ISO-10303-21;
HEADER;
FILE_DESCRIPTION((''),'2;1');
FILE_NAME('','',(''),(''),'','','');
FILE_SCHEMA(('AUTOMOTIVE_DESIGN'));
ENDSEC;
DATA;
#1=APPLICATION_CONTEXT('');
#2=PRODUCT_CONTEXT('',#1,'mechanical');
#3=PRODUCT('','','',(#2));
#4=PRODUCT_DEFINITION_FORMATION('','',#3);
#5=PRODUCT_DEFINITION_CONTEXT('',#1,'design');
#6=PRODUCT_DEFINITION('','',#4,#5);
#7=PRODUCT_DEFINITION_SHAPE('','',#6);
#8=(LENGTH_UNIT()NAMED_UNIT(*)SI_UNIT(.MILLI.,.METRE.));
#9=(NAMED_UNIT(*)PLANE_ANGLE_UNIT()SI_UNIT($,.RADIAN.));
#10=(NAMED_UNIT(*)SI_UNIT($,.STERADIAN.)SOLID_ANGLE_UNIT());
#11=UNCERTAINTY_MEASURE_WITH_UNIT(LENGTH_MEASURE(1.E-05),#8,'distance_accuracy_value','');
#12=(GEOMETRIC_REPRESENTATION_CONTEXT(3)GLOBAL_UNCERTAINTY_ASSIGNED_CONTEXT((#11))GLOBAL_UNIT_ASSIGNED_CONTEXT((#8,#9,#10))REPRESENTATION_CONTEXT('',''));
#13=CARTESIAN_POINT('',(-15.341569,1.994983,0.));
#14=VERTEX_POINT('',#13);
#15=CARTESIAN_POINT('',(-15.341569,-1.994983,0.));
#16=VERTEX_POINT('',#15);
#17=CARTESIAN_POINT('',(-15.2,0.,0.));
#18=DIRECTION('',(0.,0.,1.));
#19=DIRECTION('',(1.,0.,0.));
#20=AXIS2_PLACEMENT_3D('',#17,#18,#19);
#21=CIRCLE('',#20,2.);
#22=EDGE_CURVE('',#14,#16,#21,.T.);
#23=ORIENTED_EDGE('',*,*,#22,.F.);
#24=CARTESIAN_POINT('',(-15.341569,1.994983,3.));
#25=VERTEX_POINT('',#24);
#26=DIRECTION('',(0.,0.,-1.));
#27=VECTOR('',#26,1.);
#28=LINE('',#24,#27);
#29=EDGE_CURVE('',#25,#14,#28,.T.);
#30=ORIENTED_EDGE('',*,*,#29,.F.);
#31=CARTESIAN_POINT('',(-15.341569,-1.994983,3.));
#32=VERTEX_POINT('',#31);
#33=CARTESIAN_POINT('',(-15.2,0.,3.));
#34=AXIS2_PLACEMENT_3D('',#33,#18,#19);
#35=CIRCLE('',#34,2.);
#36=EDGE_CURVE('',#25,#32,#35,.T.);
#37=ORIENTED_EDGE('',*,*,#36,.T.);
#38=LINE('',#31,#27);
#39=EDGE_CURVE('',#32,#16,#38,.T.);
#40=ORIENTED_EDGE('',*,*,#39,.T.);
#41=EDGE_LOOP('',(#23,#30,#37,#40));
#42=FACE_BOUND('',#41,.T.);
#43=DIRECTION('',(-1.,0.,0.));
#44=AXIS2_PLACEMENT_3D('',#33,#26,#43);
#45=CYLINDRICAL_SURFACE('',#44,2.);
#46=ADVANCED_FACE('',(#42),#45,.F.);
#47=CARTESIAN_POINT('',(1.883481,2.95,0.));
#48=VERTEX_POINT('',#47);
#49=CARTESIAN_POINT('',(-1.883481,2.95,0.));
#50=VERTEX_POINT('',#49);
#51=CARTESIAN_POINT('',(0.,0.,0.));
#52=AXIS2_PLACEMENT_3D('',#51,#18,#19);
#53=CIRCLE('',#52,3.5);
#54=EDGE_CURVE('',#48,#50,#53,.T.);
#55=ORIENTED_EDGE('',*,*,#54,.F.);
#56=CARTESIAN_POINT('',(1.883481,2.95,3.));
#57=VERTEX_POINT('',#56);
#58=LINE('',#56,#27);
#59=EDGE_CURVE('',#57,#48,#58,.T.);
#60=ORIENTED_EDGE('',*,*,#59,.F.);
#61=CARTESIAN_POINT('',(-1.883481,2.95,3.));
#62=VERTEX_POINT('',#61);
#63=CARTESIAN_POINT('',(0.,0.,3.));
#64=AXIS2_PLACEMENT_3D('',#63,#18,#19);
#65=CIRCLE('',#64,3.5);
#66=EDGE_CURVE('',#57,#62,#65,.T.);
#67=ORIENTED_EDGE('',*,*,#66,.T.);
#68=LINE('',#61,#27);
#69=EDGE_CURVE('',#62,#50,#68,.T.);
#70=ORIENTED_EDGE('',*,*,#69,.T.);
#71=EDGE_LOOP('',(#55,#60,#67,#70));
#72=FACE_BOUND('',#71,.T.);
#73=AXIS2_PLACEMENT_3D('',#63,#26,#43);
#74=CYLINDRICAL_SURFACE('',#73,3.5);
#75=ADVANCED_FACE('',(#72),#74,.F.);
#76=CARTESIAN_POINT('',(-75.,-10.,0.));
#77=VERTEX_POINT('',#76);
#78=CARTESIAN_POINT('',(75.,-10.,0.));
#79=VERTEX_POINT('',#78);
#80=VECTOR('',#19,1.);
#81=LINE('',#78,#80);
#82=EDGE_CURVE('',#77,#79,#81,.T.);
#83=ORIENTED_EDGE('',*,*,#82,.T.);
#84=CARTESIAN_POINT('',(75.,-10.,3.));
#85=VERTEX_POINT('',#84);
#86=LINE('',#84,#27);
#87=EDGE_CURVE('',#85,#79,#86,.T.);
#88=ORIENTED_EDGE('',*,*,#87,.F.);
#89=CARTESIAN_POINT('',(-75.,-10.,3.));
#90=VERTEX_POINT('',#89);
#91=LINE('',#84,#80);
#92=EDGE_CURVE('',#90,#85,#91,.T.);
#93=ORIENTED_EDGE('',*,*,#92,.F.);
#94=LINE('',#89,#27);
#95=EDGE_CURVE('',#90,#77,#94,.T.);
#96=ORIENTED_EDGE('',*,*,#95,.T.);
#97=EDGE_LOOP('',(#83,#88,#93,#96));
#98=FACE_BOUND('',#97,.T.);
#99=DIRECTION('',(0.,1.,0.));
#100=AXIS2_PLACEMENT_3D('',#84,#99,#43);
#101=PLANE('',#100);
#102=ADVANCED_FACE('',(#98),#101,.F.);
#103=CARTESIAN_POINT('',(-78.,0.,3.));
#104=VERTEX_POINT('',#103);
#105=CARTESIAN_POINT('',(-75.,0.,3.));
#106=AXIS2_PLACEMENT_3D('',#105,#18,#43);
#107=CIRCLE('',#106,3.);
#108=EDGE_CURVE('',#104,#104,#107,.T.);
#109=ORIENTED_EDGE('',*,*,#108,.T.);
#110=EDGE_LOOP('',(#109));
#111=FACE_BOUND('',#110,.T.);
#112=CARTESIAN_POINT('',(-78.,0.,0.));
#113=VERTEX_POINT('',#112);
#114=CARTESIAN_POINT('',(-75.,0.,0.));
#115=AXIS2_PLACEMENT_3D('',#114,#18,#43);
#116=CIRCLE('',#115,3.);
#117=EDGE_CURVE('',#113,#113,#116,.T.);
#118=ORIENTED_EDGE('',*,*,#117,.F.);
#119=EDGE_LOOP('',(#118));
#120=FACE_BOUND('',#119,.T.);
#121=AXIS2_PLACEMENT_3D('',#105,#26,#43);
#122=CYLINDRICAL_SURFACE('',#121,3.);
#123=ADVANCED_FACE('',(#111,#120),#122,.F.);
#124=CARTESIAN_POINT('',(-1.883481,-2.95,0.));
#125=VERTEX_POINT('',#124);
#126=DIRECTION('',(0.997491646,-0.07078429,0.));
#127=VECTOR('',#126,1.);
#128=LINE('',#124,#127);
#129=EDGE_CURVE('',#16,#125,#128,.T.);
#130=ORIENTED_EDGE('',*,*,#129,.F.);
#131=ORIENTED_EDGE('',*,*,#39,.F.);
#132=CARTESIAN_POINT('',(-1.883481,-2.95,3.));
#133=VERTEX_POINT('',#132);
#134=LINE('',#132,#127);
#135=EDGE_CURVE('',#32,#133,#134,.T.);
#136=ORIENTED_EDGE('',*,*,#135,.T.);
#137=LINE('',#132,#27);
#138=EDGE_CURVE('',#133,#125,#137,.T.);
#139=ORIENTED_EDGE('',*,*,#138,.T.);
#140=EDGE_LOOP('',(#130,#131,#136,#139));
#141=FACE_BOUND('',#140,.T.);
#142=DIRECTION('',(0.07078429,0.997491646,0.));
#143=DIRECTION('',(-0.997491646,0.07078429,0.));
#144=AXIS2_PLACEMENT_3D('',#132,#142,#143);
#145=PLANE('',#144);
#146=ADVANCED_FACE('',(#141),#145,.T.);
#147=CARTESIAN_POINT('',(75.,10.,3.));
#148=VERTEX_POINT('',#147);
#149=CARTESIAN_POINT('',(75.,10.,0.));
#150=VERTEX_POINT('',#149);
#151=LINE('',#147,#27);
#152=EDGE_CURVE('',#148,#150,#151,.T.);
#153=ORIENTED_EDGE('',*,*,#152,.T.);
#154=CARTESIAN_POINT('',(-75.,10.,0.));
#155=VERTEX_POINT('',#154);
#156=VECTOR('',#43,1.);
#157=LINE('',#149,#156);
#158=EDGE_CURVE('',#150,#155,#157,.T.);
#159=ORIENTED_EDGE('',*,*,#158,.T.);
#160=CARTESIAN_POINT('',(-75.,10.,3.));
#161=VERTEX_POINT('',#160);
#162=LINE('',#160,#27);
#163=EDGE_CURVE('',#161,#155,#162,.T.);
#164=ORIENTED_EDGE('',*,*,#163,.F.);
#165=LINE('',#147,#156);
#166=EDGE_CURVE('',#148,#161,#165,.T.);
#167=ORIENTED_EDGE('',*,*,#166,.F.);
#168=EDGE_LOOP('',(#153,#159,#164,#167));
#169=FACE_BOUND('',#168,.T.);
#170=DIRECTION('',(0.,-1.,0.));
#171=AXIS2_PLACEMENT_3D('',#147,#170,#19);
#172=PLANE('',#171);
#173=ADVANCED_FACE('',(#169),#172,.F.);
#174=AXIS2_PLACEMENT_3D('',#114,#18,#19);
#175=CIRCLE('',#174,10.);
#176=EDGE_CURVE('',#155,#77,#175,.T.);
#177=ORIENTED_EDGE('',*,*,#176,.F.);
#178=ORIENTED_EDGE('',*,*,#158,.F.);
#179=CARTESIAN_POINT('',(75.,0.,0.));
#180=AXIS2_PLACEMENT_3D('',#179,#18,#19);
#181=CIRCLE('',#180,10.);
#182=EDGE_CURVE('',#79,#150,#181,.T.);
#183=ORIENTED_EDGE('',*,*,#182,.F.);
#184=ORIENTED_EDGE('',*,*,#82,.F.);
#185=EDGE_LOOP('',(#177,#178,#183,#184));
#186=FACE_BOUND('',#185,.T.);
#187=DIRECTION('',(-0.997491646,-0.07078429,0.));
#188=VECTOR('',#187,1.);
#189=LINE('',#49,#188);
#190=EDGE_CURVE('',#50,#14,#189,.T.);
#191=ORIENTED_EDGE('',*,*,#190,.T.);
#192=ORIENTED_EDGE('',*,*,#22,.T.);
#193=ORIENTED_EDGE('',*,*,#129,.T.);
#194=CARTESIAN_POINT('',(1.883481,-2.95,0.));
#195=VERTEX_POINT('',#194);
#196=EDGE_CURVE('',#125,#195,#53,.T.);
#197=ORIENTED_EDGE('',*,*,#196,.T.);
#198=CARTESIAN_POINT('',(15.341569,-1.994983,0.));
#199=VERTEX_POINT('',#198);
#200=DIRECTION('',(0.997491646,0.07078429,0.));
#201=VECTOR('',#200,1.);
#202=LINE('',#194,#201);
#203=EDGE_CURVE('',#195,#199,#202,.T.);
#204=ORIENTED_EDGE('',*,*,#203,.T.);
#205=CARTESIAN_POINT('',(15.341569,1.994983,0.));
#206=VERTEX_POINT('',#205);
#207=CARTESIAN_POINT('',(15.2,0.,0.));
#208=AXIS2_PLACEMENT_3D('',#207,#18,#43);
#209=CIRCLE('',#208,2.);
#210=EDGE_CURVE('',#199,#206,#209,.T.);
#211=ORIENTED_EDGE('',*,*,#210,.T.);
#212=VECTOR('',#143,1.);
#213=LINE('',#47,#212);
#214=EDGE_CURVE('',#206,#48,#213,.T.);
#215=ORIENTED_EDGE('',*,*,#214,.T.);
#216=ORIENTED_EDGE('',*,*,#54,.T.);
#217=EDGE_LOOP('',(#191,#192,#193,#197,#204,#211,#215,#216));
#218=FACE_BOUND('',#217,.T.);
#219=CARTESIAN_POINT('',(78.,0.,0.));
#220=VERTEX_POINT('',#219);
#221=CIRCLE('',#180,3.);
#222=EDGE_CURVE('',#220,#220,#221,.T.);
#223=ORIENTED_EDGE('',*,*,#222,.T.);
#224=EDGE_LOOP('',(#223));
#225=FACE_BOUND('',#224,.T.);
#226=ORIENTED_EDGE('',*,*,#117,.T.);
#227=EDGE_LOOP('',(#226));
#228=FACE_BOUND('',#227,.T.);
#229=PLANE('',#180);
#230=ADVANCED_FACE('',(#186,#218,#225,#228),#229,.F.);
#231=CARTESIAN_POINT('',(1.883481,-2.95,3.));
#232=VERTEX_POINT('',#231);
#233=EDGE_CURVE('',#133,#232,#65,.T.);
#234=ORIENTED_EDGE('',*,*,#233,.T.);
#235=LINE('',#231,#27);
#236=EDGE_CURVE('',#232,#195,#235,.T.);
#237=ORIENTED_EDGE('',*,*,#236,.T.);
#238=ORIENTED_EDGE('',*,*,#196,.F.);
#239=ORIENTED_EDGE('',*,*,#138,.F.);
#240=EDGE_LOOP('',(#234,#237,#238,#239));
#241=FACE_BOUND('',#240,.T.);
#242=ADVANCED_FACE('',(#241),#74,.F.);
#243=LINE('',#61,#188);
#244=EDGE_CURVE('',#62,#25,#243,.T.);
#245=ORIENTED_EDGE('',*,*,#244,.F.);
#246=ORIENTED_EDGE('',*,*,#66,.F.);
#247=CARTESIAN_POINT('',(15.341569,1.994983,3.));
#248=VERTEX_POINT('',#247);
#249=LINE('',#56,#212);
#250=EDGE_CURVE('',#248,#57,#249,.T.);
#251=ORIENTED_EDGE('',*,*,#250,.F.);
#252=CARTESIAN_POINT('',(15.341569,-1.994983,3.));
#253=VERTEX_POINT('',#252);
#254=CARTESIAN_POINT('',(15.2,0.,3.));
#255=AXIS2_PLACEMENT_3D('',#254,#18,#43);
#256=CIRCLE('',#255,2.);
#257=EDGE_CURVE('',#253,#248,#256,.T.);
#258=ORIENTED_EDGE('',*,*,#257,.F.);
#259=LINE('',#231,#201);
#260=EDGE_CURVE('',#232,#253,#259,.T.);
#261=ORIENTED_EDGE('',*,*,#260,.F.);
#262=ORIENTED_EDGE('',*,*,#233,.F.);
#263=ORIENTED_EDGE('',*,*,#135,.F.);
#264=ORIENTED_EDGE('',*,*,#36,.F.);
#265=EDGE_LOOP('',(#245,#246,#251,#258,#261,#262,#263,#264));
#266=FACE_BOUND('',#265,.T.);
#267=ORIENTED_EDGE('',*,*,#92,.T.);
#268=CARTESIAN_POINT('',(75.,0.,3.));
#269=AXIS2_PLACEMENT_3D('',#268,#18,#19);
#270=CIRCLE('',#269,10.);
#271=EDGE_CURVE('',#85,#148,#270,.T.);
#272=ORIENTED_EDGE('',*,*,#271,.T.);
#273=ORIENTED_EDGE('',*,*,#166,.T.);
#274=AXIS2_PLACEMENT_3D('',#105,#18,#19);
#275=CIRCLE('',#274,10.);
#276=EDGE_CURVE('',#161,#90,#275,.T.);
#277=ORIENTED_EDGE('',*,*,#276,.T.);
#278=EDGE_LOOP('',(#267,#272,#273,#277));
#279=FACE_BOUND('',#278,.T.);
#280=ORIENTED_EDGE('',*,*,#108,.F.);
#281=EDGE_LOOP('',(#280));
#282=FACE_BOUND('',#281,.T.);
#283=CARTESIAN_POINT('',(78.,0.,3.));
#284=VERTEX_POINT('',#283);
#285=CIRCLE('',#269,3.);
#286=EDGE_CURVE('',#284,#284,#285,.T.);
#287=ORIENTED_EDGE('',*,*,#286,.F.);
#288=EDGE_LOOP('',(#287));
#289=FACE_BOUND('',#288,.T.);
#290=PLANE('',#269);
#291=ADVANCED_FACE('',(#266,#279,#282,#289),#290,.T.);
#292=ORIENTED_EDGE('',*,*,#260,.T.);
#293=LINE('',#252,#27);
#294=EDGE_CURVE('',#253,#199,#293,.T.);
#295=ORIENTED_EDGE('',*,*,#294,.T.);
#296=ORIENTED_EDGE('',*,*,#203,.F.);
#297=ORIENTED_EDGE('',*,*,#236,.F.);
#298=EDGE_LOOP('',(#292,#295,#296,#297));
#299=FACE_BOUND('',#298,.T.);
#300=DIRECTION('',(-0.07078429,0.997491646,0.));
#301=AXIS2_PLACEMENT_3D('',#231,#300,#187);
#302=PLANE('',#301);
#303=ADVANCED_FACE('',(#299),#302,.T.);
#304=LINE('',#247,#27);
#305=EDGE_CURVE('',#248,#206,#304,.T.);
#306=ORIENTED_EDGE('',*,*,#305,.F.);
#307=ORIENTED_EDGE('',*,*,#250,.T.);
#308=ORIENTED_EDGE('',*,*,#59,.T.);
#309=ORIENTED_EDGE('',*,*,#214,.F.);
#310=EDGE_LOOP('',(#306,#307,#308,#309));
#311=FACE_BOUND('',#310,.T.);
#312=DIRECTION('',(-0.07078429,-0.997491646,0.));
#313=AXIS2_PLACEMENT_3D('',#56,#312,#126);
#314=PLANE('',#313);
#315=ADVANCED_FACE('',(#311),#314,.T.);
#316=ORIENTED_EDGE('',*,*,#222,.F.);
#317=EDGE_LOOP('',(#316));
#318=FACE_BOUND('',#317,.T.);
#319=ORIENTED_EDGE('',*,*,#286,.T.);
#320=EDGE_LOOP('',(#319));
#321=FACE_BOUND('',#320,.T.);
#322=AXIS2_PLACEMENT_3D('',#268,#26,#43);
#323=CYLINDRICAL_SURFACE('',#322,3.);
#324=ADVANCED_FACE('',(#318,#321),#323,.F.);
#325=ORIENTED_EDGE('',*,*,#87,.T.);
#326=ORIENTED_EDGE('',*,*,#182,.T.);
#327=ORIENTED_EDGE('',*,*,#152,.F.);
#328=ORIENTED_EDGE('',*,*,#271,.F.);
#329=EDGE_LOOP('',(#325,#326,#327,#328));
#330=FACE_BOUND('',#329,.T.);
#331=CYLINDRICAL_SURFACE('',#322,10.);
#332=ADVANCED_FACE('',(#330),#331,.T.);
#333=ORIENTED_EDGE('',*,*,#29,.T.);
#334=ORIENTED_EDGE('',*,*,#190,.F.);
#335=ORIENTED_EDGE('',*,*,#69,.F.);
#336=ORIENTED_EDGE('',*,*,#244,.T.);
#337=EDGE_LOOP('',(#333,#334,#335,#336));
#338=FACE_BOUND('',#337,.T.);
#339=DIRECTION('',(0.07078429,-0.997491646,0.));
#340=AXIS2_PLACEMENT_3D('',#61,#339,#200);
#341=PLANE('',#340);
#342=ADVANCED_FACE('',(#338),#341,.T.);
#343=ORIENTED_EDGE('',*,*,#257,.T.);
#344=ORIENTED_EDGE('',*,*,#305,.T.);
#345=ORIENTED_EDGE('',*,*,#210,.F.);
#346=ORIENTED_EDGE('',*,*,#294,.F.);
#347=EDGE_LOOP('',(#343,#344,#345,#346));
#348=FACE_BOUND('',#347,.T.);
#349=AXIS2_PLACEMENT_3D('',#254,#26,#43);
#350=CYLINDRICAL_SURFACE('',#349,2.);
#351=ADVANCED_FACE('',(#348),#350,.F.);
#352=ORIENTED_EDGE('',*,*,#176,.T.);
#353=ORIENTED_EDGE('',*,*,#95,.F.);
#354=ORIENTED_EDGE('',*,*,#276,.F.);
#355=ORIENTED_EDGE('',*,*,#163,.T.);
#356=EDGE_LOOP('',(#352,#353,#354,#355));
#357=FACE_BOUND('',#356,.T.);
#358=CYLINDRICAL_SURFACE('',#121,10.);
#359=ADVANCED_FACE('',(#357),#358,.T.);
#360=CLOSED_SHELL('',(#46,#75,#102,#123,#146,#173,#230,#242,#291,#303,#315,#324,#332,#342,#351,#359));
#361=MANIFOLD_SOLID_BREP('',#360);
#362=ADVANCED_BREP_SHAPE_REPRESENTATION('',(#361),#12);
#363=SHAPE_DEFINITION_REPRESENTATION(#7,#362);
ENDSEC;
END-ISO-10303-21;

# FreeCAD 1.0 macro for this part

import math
import FreeCAD as App
import Part
import Sketcher
from FreeCAD import Vector
Q = App.Units.Quantity

doc = App.newDocument("Part")
params = doc.addObject("Spreadsheet::Sheet", "Params")
for row, (alias, value) in enumerate([
    ("sketch1_diameter", "6 mm"),
    ("sketch1_radius", "10 mm"),
    ("sketch1_radius2", "2 mm"),
    ("sketch1_radius3", "3.5 mm"),
    ("sketch1_width", "150 mm"),
    ("pad1_length", "3 mm"),
], start=1):
    params.set(f"A{row}", alias)
    params.set(f"B{row}", "=" + value)
    params.setAlias(f"B{row}", alias)

body = doc.addObject("PartDesign::Body", "Body")

sketch1 = body.newObject("Sketcher::SketchObject", "Sketch")
sketch1.AttachmentSupport = (doc.getObject("XY_Plane"), [""])
sketch1.MapMode = "FlatFace"
sketch1.addGeometry(Part.LineSegment(Vector(-75, -10, 0), Vector(75, -10, 0)), False)
sketch1.addGeometry(Part.ArcOfCircle(Part.Circle(Vector(75, 0, 0), Vector(0, 0, 1), 10), math.radians(-90), math.radians(90)), False)
sketch1.addGeometry(Part.LineSegment(Vector(75, 10, 0), Vector(-75, 10, 0)), False)
sketch1.addGeometry(Part.ArcOfCircle(Part.Circle(Vector(-75, 0, 0), Vector(0, 0, 1), 10), math.radians(90), math.radians(270)), False)
sketch1.addGeometry(Part.Circle(Vector(75, 0, 0), Vector(0, 0, 1), 3), False)
sketch1.addGeometry(Part.ArcOfCircle(Part.Circle(Vector(0, 0, 0), Vector(0, 0, 1), 3.5), math.radians(57), math.radians(123)), False)
sketch1.addGeometry(Part.LineSegment(Vector(1.9, 3, 0), Vector(15.3, 2, 0)), False)
sketch1.addGeometry(Part.ArcOfCircle(Part.Circle(Vector(15.2, 0, 0), Vector(0, 0, 1), 2), math.radians(-86), math.radians(86)), False)
sketch1.addGeometry(Part.LineSegment(Vector(15.3, -2, 0), Vector(1.9, -3, 0)), False)
sketch1.addGeometry(Part.ArcOfCircle(Part.Circle(Vector(0, 0, 0), Vector(0, 0, 1), 3.5), math.radians(-123), math.radians(-57)), False)
sketch1.addGeometry(Part.LineSegment(Vector(-1.9, -3, 0), Vector(-15.3, -2, 0)), False)
sketch1.addGeometry(Part.ArcOfCircle(Part.Circle(Vector(-15.2, 0, 0), Vector(0, 0, 1), 2), math.radians(94), math.radians(266)), False)
sketch1.addGeometry(Part.LineSegment(Vector(-15.3, 2, 0), Vector(-1.9, 3, 0)), False)
sketch1.addGeometry(Part.Circle(Vector(-75, 0, 0), Vector(0, 0, 1), 3), False)
sketch1.addConstraint(Sketcher.Constraint("Tangent", 0, 2, 1, 1))
sketch1.addConstraint(Sketcher.Constraint("Tangent", 1, 2, 2, 1))
sketch1.addConstraint(Sketcher.Constraint("Tangent", 2, 2, 3, 1))
sketch1.addConstraint(Sketcher.Constraint("Tangent", 3, 2, 0, 1))
sketch1.addConstraint(Sketcher.Constraint("Coincident", 5, 1, 6, 1))
sketch1.addConstraint(Sketcher.Constraint("Tangent", 6, 2, 7, 2))
sketch1.addConstraint(Sketcher.Constraint("Tangent", 7, 1, 8, 1))
sketch1.addConstraint(Sketcher.Constraint("Coincident", 8, 2, 9, 2))
sketch1.addConstraint(Sketcher.Constraint("Coincident", 9, 1, 10, 1))
sketch1.addConstraint(Sketcher.Constraint("Tangent", 10, 2, 11, 2))
sketch1.addConstraint(Sketcher.Constraint("Tangent", 11, 1, 12, 1))
sketch1.addConstraint(Sketcher.Constraint("Coincident", 12, 2, 5, 2))
sketch1.addConstraint(Sketcher.Constraint("Horizontal", 0))
sketch1.addConstraint(Sketcher.Constraint("Horizontal", 2))
sketch1.addConstraint(Sketcher.Constraint("Coincident", 5, 3, -1, 1))
sketch1.addConstraint(Sketcher.Constraint("Coincident", 9, 3, -1, 1))
sketch1.addConstraint(Sketcher.Constraint("Coincident", 4, 3, 1, 3))
sketch1.addConstraint(Sketcher.Constraint("Coincident", 13, 3, 3, 3))
sketch1.addConstraint(Sketcher.Constraint("Equal", 5, 9))
sketch1.addConstraint(Sketcher.Constraint("Equal", 7, 11))
sketch1.addConstraint(Sketcher.Constraint("Equal", 4, 13))
sketch1.addConstraint(Sketcher.Constraint("Symmetric", 1, 3, 3, 3, -1, 1))
sketch1.addConstraint(Sketcher.Constraint("Symmetric", 7, 3, 11, 3, -1, 1))
sketch1.addConstraint(Sketcher.Constraint("Symmetric", 7, 1, 10, 2, -2))
sketch1.addConstraint(Sketcher.Constraint("Parallel", 6, 10))
sketch1.addConstraint(Sketcher.Constraint("Parallel", 8, 12))
sketch1.addConstraint(Sketcher.Constraint("Diameter", 4, Q("6 mm")))
sketch1.addConstraint(Sketcher.Constraint("Radius", 1, Q("10 mm")))
sketch1.addConstraint(Sketcher.Constraint("Radius", 7, Q("2 mm")))
sketch1.addConstraint(Sketcher.Constraint("Radius", 5, Q("3.5 mm")))
sketch1.addConstraint(Sketcher.Constraint("DistanceX", 0, 1, 0, 2, Q("150 mm")))
sketch1.addConstraint(Sketcher.Constraint("DistanceX", -1, 1, 7, 3, Q("15.2 mm")))
sketch1.addConstraint(Sketcher.Constraint("DistanceY", 8, 2, 5, 1, Q("5.9 mm")))
sketch1.setExpression("Constraints[26]", "Params.sketch1_diameter")
sketch1.setExpression("Constraints[27]", "Params.sketch1_radius")
sketch1.setExpression("Constraints[28]", "Params.sketch1_radius2")
sketch1.setExpression("Constraints[29]", "Params.sketch1_radius3")
sketch1.setExpression("Constraints[30]", "Params.sketch1_width")
pad1 = body.newObject("PartDesign::Pad", "Pad")
pad1.Profile = sketch1
pad1.setExpression("Length", "Params.pad1_length")

doc.recompute()
